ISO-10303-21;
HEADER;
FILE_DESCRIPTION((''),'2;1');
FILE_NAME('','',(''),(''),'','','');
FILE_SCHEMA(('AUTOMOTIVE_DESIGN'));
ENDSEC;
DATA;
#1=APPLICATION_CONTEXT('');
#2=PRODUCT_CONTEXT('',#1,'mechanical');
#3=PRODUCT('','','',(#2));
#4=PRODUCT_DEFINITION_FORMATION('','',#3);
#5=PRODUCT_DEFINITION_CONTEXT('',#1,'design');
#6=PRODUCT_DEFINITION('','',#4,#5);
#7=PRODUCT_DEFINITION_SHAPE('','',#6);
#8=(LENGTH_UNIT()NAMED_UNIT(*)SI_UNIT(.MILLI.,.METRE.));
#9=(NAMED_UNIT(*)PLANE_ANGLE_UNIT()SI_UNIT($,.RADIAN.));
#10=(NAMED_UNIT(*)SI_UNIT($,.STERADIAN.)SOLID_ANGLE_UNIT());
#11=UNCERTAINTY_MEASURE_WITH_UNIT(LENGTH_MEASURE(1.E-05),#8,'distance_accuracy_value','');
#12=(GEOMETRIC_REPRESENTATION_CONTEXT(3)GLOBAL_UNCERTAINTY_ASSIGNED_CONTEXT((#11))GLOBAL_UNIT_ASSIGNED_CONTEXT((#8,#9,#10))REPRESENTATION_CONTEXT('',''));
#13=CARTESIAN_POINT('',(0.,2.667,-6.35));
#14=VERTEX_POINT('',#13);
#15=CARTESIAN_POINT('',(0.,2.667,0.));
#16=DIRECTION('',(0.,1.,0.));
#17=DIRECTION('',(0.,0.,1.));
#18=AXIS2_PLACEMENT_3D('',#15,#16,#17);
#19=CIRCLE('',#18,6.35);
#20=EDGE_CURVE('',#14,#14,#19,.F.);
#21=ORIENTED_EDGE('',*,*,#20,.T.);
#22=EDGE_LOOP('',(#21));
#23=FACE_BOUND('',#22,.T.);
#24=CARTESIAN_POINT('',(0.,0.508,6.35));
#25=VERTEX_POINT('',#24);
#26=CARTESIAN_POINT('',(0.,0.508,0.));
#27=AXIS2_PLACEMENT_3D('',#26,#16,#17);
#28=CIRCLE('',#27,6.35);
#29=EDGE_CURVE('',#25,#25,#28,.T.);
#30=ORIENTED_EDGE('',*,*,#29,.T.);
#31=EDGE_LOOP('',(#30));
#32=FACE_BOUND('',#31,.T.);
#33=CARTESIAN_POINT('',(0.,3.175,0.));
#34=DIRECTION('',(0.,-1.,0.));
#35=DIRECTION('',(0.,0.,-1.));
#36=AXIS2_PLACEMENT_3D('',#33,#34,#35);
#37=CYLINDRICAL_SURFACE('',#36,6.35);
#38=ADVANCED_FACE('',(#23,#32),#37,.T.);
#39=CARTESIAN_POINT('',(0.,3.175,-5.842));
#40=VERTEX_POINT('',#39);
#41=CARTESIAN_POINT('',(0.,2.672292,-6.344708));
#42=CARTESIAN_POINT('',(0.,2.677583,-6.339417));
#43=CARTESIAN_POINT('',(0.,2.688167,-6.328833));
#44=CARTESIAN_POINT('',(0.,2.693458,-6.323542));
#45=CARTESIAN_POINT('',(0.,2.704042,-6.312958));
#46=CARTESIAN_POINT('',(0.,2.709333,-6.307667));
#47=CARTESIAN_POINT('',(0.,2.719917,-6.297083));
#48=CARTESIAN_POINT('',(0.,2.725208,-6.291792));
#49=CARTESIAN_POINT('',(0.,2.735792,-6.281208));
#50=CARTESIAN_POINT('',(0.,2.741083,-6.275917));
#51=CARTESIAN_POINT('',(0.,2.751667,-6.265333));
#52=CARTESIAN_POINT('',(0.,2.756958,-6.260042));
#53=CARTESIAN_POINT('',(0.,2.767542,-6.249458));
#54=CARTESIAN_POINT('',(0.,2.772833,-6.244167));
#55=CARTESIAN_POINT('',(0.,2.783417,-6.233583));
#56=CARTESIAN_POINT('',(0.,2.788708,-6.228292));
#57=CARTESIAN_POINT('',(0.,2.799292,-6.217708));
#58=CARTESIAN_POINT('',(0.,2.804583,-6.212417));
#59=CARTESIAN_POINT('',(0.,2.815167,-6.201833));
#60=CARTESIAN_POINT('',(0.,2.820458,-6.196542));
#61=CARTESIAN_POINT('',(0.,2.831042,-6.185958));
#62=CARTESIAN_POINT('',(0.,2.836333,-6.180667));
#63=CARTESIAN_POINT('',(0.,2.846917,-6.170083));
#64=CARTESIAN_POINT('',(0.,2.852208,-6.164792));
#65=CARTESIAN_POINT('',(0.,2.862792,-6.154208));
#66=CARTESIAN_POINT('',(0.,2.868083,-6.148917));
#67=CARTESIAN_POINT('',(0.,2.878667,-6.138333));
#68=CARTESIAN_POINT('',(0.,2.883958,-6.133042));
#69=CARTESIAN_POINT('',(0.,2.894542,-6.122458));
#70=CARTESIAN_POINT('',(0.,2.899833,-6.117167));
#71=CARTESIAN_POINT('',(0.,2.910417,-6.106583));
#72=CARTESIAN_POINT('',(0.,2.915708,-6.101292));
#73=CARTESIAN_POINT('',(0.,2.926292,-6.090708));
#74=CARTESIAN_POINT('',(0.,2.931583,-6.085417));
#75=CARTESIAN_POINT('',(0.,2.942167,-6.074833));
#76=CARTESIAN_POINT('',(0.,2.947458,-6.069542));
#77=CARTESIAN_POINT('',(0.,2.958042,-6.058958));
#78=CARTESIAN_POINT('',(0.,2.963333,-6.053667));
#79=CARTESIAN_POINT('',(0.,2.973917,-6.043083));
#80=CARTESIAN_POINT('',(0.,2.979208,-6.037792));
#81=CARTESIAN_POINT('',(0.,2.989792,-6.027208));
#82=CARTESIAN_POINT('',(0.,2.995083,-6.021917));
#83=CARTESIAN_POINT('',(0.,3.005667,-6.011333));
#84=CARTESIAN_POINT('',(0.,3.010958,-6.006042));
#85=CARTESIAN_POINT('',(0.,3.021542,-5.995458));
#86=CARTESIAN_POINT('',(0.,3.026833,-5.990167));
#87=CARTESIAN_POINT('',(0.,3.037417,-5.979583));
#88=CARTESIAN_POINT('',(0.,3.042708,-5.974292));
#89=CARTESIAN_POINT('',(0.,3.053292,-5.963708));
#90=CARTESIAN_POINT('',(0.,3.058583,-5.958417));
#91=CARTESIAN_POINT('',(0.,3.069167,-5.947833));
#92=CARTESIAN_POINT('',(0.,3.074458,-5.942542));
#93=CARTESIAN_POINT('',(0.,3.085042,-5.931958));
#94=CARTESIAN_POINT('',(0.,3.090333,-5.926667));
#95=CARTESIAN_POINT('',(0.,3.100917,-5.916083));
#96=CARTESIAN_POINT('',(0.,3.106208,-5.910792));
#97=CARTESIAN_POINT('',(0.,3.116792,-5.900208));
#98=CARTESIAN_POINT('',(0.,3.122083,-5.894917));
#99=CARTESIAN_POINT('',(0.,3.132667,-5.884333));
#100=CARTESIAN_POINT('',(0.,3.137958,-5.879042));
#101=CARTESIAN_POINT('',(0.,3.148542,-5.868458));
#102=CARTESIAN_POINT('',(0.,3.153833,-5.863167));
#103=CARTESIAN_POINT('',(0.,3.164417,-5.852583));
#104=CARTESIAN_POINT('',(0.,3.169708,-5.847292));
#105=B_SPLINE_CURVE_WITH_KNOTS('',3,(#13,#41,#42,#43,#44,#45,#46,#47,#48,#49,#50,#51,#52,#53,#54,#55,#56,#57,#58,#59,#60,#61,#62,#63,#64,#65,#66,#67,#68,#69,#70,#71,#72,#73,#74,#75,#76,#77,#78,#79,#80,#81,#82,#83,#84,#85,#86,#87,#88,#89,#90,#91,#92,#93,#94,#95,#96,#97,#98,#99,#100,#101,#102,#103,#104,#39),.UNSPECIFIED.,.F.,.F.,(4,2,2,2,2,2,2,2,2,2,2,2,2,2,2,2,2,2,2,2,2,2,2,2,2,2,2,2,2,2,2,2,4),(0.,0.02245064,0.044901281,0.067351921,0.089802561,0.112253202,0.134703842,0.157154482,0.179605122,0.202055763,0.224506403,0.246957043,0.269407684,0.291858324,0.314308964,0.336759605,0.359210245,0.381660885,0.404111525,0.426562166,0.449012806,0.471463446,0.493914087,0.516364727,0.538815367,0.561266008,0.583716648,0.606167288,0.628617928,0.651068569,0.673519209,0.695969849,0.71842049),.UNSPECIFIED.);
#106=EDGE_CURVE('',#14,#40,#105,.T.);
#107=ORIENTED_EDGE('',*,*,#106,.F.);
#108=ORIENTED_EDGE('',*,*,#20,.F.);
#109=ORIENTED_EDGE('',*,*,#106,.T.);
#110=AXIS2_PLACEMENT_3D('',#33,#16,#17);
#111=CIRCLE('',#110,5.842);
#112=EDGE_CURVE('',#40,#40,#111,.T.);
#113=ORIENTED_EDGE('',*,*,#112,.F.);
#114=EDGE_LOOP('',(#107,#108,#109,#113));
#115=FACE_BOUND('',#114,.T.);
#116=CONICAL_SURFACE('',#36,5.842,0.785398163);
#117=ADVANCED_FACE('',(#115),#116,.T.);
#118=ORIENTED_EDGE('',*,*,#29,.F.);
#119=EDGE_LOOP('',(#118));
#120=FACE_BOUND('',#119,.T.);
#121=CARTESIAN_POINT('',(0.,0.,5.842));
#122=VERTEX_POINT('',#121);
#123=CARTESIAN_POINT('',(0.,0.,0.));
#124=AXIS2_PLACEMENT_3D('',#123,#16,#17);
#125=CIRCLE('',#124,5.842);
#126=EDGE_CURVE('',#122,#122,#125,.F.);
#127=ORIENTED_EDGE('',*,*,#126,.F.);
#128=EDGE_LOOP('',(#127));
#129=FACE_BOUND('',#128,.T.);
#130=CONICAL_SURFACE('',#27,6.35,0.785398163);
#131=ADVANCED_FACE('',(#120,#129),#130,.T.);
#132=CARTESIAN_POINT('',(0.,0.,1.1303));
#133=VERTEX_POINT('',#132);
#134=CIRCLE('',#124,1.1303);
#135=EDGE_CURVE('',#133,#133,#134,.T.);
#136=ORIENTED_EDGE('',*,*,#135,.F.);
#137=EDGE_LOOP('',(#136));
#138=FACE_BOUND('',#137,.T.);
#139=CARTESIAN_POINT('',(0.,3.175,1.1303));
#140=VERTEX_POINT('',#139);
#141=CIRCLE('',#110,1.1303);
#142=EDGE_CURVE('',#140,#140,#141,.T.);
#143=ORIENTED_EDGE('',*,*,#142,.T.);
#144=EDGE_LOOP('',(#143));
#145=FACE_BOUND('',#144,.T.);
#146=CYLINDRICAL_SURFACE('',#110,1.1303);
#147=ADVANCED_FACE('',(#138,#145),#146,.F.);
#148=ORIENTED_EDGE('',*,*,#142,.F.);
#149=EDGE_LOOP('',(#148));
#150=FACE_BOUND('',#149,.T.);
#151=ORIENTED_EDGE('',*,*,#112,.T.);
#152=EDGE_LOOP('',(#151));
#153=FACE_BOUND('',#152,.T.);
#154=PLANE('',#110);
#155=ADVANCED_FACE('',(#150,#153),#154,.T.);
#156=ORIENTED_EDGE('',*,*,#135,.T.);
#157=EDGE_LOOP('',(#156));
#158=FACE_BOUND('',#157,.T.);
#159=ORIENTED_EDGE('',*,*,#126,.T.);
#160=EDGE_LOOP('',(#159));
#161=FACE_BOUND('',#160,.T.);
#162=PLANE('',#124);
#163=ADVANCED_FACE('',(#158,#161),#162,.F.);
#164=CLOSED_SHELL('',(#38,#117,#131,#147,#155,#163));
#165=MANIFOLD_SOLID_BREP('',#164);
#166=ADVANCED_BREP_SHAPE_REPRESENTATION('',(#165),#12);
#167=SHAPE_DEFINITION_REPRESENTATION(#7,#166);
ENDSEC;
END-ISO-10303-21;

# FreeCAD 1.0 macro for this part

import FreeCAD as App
import Part
import Sketcher
Q = App.Units.Quantity


def edges_at(feature, points):
    """Names of the edges that pass closest to the given points."""
    edges = feature.Shape.Edges
    near = lambda p: min(range(len(edges)), key=lambda i: edges[i].distToShape(Part.Vertex(*p))[0])
    return sorted({f"Edge{near(p) + 1}" for p in points})

doc = App.newDocument("Part")
body = doc.addObject("PartDesign::Body", "Body")

sketch1 = doc.addObject("Sketcher::SketchObject", "Sketch")
body.addObject(sketch1)
sketch1.AttachmentSupport = (doc.XZ_Plane, [""])
sketch1.MapMode = "FlatFace"
sketch1.addGeometry(Part.Circle(App.Vector(0, 0, 0), App.Vector(0, 0, 1), 6), False)
sketch1.addConstraint(Sketcher.Constraint("Coincident", 0, 3, -1, 1))
sketch1.addConstraint(Sketcher.Constraint("Diameter", 0, Q("0.5 in")))
pad1 = doc.addObject("PartDesign::Pad", "Pad")
body.addObject(pad1)
pad1.Profile = sketch1
pad1.Length = Q("0.125 in")
pad1.Reversed = True

sketch2 = doc.addObject("Sketcher::SketchObject", "Sketch001")
body.addObject(sketch2)
sketch2.AttachmentSupport = (doc.XZ_Plane, [""])
sketch2.MapMode = "FlatFace"
sketch2.AttachmentOffset = App.Placement(App.Vector(0, 0, -0.125 * 25.4), App.Rotation())
sketch2.addGeometry(Part.Circle(App.Vector(0, 0, 0), App.Vector(0, 0, 1), 1.1), False)
sketch2.addConstraint(Sketcher.Constraint("Coincident", 0, 3, -1, 1))
sketch2.addConstraint(Sketcher.Constraint("Diameter", 0, Q("0.089 in")))
doc.recompute()
hole = doc.addObject("PartDesign::Hole", "Hole")
body.addObject(hole)
hole.Profile = sketch2
hole.ThreadType = "None"
hole.Diameter = Q("0.089 in")
hole.DepthType = "ThroughAll"
hole.Reversed = True
doc.recompute()

chamfer = doc.addObject("PartDesign::Chamfer", "Chamfer")
body.addObject(chamfer)
chamfer.Base = (hole, edges_at(hole, [(0, 0, -6.35), (0, 3.175, -6.35)]))
chamfer.Size = Q("0.02 in")

doc.recompute()
